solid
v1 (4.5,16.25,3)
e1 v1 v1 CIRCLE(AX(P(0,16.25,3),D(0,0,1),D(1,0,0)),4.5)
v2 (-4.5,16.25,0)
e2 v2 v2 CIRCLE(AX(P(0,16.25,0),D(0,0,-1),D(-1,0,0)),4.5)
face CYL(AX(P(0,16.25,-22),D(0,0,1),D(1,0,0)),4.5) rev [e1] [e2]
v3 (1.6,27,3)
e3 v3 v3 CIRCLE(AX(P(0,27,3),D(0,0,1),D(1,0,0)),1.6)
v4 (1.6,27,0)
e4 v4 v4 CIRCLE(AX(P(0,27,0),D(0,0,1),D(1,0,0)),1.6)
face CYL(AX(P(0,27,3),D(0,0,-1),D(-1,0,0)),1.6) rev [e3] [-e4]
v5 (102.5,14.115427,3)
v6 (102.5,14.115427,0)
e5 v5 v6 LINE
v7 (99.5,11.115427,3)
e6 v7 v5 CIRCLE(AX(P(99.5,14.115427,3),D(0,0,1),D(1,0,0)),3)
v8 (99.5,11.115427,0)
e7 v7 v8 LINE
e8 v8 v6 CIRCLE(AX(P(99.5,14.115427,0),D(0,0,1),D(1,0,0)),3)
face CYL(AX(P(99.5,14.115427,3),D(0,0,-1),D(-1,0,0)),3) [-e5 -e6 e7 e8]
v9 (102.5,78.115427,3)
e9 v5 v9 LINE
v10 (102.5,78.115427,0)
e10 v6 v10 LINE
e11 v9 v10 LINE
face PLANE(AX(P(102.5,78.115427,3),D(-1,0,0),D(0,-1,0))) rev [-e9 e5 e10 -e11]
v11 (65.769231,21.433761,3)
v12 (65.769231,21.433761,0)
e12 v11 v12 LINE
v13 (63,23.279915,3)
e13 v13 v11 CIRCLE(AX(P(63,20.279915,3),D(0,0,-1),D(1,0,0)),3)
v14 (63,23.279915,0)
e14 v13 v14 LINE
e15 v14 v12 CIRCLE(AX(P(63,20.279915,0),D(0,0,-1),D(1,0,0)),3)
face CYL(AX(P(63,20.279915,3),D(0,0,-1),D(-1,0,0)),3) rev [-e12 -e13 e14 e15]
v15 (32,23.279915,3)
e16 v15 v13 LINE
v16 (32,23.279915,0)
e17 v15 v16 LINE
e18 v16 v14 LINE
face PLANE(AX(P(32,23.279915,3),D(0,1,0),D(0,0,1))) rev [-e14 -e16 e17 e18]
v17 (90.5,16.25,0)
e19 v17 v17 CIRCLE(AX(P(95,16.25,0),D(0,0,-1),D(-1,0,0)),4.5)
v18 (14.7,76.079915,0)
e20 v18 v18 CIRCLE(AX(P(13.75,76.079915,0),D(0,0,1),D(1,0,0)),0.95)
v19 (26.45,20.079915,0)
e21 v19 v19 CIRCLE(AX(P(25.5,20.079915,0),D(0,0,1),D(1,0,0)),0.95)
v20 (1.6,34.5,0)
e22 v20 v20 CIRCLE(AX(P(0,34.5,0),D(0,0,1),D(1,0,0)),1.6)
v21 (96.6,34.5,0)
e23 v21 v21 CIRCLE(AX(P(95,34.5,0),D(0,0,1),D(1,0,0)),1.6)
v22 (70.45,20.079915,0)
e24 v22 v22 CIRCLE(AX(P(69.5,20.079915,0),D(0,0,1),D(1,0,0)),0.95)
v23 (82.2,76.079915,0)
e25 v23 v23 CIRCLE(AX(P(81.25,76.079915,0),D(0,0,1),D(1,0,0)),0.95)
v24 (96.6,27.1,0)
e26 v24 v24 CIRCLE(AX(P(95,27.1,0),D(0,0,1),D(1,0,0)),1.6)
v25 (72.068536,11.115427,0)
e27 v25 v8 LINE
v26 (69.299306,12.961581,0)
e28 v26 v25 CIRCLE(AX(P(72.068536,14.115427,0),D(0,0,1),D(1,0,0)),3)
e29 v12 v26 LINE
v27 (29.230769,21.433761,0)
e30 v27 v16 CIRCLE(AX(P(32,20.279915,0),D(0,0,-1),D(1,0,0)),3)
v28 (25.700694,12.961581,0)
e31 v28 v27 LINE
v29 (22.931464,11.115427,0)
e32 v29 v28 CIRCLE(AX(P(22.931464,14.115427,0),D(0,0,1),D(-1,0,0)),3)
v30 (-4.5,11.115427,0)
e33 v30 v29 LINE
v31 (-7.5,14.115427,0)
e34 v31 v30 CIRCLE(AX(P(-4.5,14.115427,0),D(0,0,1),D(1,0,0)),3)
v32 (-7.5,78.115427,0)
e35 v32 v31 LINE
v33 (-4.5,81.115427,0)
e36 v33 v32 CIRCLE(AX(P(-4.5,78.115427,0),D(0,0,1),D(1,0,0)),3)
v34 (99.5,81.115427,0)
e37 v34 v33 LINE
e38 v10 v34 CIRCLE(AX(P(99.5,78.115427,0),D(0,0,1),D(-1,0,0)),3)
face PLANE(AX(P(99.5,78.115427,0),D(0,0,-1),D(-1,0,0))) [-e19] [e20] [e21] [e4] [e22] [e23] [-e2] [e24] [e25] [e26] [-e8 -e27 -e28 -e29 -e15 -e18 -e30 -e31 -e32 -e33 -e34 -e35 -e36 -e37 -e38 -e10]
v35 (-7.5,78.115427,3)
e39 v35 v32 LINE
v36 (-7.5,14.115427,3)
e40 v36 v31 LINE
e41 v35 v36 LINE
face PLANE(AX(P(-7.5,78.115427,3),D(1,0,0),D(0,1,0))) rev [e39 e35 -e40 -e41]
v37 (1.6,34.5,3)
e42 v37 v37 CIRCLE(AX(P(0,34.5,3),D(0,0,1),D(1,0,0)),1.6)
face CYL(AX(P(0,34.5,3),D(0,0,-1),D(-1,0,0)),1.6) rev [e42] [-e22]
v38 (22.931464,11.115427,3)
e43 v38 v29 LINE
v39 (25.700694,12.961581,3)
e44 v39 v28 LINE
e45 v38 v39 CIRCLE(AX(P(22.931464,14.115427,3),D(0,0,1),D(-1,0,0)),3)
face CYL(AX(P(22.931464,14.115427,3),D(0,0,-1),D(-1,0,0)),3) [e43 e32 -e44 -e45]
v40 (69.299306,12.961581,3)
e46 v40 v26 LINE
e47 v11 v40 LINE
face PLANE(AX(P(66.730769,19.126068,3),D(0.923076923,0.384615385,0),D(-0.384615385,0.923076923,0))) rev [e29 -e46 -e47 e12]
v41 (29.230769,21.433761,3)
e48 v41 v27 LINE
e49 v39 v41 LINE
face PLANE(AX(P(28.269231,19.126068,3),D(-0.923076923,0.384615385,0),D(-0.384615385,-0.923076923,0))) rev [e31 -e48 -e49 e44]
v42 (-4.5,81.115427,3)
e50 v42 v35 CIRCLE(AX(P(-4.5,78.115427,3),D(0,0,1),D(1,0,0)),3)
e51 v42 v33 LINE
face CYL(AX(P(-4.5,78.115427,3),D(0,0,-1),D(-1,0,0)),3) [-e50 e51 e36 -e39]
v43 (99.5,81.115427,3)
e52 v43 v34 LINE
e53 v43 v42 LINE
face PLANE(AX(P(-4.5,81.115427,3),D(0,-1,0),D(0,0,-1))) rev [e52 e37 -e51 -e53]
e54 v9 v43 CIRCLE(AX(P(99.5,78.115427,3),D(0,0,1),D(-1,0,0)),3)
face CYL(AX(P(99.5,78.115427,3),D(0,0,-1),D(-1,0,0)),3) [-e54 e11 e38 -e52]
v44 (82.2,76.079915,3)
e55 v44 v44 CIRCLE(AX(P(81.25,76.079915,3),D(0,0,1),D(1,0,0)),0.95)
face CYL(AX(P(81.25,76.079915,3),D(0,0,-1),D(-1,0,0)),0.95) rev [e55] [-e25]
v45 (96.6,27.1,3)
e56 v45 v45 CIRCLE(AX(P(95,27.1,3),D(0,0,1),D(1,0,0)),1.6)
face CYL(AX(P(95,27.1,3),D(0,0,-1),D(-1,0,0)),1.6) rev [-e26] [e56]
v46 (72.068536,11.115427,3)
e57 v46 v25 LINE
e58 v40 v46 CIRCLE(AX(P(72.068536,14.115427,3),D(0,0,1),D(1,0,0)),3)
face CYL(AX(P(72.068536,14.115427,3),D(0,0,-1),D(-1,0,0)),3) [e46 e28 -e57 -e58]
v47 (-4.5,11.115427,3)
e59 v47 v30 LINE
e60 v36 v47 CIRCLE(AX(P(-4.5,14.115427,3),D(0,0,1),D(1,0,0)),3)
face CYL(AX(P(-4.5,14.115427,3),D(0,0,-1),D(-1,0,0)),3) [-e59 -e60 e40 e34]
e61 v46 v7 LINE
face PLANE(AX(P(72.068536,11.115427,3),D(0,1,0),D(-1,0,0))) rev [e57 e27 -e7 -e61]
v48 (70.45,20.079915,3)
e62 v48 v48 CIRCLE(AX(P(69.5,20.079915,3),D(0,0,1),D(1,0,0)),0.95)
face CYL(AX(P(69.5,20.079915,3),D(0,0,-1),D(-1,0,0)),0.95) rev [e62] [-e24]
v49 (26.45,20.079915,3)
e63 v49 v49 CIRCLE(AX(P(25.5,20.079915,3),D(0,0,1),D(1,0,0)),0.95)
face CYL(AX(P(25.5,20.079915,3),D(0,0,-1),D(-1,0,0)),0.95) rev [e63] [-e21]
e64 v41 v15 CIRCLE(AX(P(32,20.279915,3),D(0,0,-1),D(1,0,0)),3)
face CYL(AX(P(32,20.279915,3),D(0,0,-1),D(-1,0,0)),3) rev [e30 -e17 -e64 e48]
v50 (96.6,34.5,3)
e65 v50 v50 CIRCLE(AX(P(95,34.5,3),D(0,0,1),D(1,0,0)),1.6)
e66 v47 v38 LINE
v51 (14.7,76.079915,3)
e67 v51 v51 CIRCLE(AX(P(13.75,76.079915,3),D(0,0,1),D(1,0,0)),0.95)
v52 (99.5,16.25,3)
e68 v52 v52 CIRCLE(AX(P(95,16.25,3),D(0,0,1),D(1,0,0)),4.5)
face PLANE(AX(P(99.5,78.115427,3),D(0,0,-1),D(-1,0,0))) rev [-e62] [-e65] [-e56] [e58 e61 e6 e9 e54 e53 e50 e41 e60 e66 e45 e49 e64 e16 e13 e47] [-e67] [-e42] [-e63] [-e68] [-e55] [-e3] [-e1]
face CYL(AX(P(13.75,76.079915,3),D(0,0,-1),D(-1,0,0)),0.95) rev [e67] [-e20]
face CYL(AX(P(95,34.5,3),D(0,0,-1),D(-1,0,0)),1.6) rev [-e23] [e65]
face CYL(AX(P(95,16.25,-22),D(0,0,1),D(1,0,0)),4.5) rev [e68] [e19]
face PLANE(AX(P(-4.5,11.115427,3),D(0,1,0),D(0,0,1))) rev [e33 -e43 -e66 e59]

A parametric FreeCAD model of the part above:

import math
import FreeCAD as App
import Part
import Sketcher

V = App.Vector

doc = App.newDocument("Part")
params = doc.addObject("Spreadsheet::Sheet", "Params")
for row, (alias, value) in enumerate([
    ("sketch1_radius", "3 mm"),
    ("sketch1_diameter", "3.2 mm"),
    ("sketch1_diameter2", "1.9 mm"),
    ("sketch1_width", "31 mm"),
    ("sketch1_width2", "104 mm"),
    ("pad1_length", "3 mm"),
    ("sketch2_diameter", "9 mm"),
    ("pocket1_length", "25 mm"),
], start=1):
    params.set(f"A{row}", alias)
    params.set(f"B{row}", "=" + value)
    params.setAlias(f"B{row}", alias)

body = doc.addObject("PartDesign::Body", "Body")

# Sketch on XY plane
sketch1 = doc.addObject("Sketcher::SketchObject", "Sketch")
body.addObject(sketch1)
sketch1.AttachmentSupport = (doc.XY_Plane, [""])
sketch1.MapMode = "FlatFace"
sketch1.addGeometry([
    Part.LineSegment(V(32, 23.3, 0), V(63, 23.3, 0)),  # 0
    Part.ArcOfCircle(Part.Circle(V(63, 20.3, 0), V(0, 0, 1), 3), math.radians(23), math.radians(90)),  # 1
    Part.LineSegment(V(65.8, 21.4, 0), V(66.7, 19.1, 0)),  # 2
    Part.LineSegment(V(66.7, 19.1, 0), V(69.3, 13, 0)),  # 3
    Part.ArcOfCircle(Part.Circle(V(72.1, 14.1, 0), V(0, 0, 1), 3), math.radians(-157), math.radians(-90)),  # 4
    Part.LineSegment(V(72.1, 11.1, 0), V(99.5, 11.1, 0)),  # 5
    Part.ArcOfCircle(Part.Circle(V(99.5, 14.1, 0), V(0, 0, 1), 3), math.radians(-90), math.radians(0)),  # 6
    Part.LineSegment(V(102.5, 14.1, 0), V(102.5, 78.1, 0)),  # 7
    Part.ArcOfCircle(Part.Circle(V(99.5, 78.1, 0), V(0, 0, 1), 3), math.radians(0), math.radians(90)),  # 8
    Part.LineSegment(V(99.5, 81.1, 0), V(-4.5, 81.1, 0)),  # 9
    Part.ArcOfCircle(Part.Circle(V(-4.5, 78.1, 0), V(0, 0, 1), 3), math.radians(90), math.radians(180)),  # 10
    Part.LineSegment(V(-7.5, 78.1, 0), V(-7.5, 14.1, 0)),  # 11
    Part.ArcOfCircle(Part.Circle(V(-4.5, 14.1, 0), V(0, 0, 1), 3), math.radians(180), math.radians(270)),  # 12
    Part.LineSegment(V(-4.5, 11.1, 0), V(22.9, 11.1, 0)),  # 13
    Part.ArcOfCircle(Part.Circle(V(22.9, 14.1, 0), V(0, 0, 1), 3), math.radians(-90), math.radians(-23)),  # 14
    Part.LineSegment(V(25.7, 13, 0), V(28.3, 19.1, 0)),  # 15
    Part.LineSegment(V(28.3, 19.1, 0), V(29.2, 21.4, 0)),  # 16
    Part.ArcOfCircle(Part.Circle(V(32, 20.3, 0), V(0, 0, 1), 3), math.radians(90), math.radians(157)),  # 17
    Part.Circle(V(0, 27, 0), V(0, 0, 1), 1.6),  # 18
    Part.Circle(V(25.5, 20.1, 0), V(0, 0, 1), 0.9),  # 19
    Part.Circle(V(0, 34.5, 0), V(0, 0, 1), 1.6),  # 20
    Part.Circle(V(69.5, 20.1, 0), V(0, 0, 1), 0.9),  # 21
    Part.Circle(V(95, 27.1, 0), V(0, 0, 1), 1.6),  # 22
    Part.Circle(V(95, 34.5, 0), V(0, 0, 1), 1.6),  # 23
    Part.Circle(V(13.8, 76.1, 0), V(0, 0, 1), 0.9),  # 24
    Part.Circle(V(81.2, 76.1, 0), V(0, 0, 1), 0.9),  # 25
], False)
sketch1.addConstraint([
    Sketcher.Constraint("Tangent", 0, 2, 1, 2),
    Sketcher.Constraint("Tangent", 1, 1, 2, 1),
    Sketcher.Constraint("Coincident", 2, 2, 3, 1),
    Sketcher.Constraint("Tangent", 3, 2, 4, 1),
    Sketcher.Constraint("Tangent", 4, 2, 5, 1),
    Sketcher.Constraint("Tangent", 5, 2, 6, 1),
    Sketcher.Constraint("Tangent", 6, 2, 7, 1),
    Sketcher.Constraint("Tangent", 7, 2, 8, 1),
    Sketcher.Constraint("Tangent", 8, 2, 9, 1),
    Sketcher.Constraint("Tangent", 9, 2, 10, 1),
    Sketcher.Constraint("Tangent", 10, 2, 11, 1),
    Sketcher.Constraint("Tangent", 11, 2, 12, 1),
    Sketcher.Constraint("Tangent", 12, 2, 13, 1),
    Sketcher.Constraint("Tangent", 13, 2, 14, 1),
    Sketcher.Constraint("Tangent", 14, 2, 15, 1),
    Sketcher.Constraint("Coincident", 15, 2, 16, 1),
    Sketcher.Constraint("Tangent", 16, 2, 17, 2),
    Sketcher.Constraint("Tangent", 17, 1, 0, 1),
    Sketcher.Constraint("Horizontal", 0),
    Sketcher.Constraint("Horizontal", 5),
    Sketcher.Constraint("Vertical", 7),
    Sketcher.Constraint("Horizontal", 9),
    Sketcher.Constraint("Vertical", 11),
    Sketcher.Constraint("Horizontal", 13),
    Sketcher.Constraint("Equal", 1, 4),
    Sketcher.Constraint("Equal", 4, 6),
    Sketcher.Constraint("Equal", 6, 8),
    Sketcher.Constraint("Equal", 8, 10),
    Sketcher.Constraint("Equal", 10, 12),
    Sketcher.Constraint("Equal", 12, 14),
    Sketcher.Constraint("Equal", 14, 17),
    Sketcher.Constraint("Equal", 18, 20),
    Sketcher.Constraint("Equal", 19, 21),
    Sketcher.Constraint("Equal", 20, 22),
    Sketcher.Constraint("Equal", 22, 23),
    Sketcher.Constraint("Equal", 21, 24),
    Sketcher.Constraint("Equal", 24, 25),
    Sketcher.Constraint("PointOnObject", 18, 3, -2),
    Sketcher.Constraint("PointOnObject", 20, 3, -2),
    Sketcher.Constraint("Parallel", 2, 3),
    Sketcher.Constraint("Parallel", 15, 16),
    Sketcher.Constraint("Horizontal", 6, 3, 12, 3),
    Sketcher.Constraint("Horizontal", 19, 3, 21, 3),
    Sketcher.Constraint("Horizontal", 20, 3, 23, 3),
    Sketcher.Constraint("Horizontal", 24, 3, 25, 3),
    Sketcher.Constraint("Horizontal", 3, 2, 14, 2),
    Sketcher.Constraint("Horizontal", 2, 2, 15, 2),
    Sketcher.Constraint("Vertical", 22, 3, 23, 3),
    Sketcher.Constraint("Equal", 5, 13),
    Sketcher.Constraint("Radius", 1, 3.0),
    Sketcher.Constraint("Diameter", 18, 3.2),
    Sketcher.Constraint("Diameter", 19, 1.9),
    Sketcher.Constraint("DistanceX", 0, 1, 0, 2, 31.0),
    Sketcher.Constraint("DistanceX", 9, 2, 9, 1, 104.0),
    Sketcher.Constraint("DistanceY", 7, 1, 7, 2, 64.0),
    Sketcher.Constraint("DistanceX", -1, 1, 1, 3, 63.0),
    Sketcher.Constraint("DistanceY", -1, 1, 18, 3, 27.0),
    Sketcher.Constraint("DistanceX", -1, 1, 22, 3, 95.0),
    Sketcher.Constraint("DistanceX", 12, 3, 19, 3, 30.0),
    Sketcher.Constraint("DistanceX", 21, 3, 6, 3, 30.0),
    Sketcher.Constraint("DistanceY", 19, 3, 24, 3, 56.0),
    Sketcher.Constraint("Distance", 2, 2.5),
    Sketcher.Constraint("DistanceY", -1, 1, 20, 3, 34.5),
    Sketcher.Constraint("DistanceY", -1, 1, 22, 3, 27.1),
    Sketcher.Constraint("DistanceY", 19, 3, 17, 3, 0.2),
    Sketcher.Constraint("DistanceX", -1, 1, 24, 3, 13.75),
    Sketcher.Constraint("DistanceX", -1, 1, 25, 3, 81.25),
    Sketcher.Constraint("DistanceX", 5, 1, 5, 2, 27.431464),
    Sketcher.Constraint("DistanceX", -1, 1, 1, 1, 65.769231),
    Sketcher.Constraint("DistanceY", -1, 1, 1, 1, 21.433761),
])
sketch1.setExpression("Constraints[49]", "Params.sketch1_radius")
sketch1.setExpression("Constraints[50]", "Params.sketch1_diameter")
sketch1.setExpression("Constraints[51]", "Params.sketch1_diameter2")
sketch1.setExpression("Constraints[52]", "Params.sketch1_width")
sketch1.setExpression("Constraints[53]", "Params.sketch1_width2")
pad1 = doc.addObject("PartDesign::Pad", "Pad")
body.addObject(pad1)
pad1.Profile = sketch1
pad1.setExpression("Length", "Params.pad1_length")

# Sketch on XY plane
sketch2 = doc.addObject("Sketcher::SketchObject", "Sketch001")
body.addObject(sketch2)
sketch2.AttachmentSupport = (doc.XY_Plane, [""])
sketch2.MapMode = "FlatFace"
sketch2.AttachmentOffset = App.Placement(V(0, 0, 3), App.Rotation())
sketch2.addGeometry([
    Part.Circle(V(0, 16.2, 0), V(0, 0, 1), 4.5),
    Part.Circle(V(95, 16.2, 0), V(0, 0, 1), 4.5),
], False)
sketch2.addConstraint([
    Sketcher.Constraint("Equal", 0, 1),
    Sketcher.Constraint("PointOnObject", 0, 3, -2),
    Sketcher.Constraint("Horizontal", 0, 3, 1, 3),
    Sketcher.Constraint("Diameter", 0, 9.0),
    Sketcher.Constraint("DistanceX", -1, 1, 1, 3, 95.0),
    Sketcher.Constraint("DistanceY", -1, 1, 0, 3, 16.25),
])
sketch2.setExpression("Constraints[3]", "Params.sketch2_diameter")
pocket1 = doc.addObject("PartDesign::Pocket", "Pocket")
body.addObject(pocket1)
pocket1.Profile = sketch2
pocket1.setExpression("Length", "Params.pocket1_length")

doc.recompute()
